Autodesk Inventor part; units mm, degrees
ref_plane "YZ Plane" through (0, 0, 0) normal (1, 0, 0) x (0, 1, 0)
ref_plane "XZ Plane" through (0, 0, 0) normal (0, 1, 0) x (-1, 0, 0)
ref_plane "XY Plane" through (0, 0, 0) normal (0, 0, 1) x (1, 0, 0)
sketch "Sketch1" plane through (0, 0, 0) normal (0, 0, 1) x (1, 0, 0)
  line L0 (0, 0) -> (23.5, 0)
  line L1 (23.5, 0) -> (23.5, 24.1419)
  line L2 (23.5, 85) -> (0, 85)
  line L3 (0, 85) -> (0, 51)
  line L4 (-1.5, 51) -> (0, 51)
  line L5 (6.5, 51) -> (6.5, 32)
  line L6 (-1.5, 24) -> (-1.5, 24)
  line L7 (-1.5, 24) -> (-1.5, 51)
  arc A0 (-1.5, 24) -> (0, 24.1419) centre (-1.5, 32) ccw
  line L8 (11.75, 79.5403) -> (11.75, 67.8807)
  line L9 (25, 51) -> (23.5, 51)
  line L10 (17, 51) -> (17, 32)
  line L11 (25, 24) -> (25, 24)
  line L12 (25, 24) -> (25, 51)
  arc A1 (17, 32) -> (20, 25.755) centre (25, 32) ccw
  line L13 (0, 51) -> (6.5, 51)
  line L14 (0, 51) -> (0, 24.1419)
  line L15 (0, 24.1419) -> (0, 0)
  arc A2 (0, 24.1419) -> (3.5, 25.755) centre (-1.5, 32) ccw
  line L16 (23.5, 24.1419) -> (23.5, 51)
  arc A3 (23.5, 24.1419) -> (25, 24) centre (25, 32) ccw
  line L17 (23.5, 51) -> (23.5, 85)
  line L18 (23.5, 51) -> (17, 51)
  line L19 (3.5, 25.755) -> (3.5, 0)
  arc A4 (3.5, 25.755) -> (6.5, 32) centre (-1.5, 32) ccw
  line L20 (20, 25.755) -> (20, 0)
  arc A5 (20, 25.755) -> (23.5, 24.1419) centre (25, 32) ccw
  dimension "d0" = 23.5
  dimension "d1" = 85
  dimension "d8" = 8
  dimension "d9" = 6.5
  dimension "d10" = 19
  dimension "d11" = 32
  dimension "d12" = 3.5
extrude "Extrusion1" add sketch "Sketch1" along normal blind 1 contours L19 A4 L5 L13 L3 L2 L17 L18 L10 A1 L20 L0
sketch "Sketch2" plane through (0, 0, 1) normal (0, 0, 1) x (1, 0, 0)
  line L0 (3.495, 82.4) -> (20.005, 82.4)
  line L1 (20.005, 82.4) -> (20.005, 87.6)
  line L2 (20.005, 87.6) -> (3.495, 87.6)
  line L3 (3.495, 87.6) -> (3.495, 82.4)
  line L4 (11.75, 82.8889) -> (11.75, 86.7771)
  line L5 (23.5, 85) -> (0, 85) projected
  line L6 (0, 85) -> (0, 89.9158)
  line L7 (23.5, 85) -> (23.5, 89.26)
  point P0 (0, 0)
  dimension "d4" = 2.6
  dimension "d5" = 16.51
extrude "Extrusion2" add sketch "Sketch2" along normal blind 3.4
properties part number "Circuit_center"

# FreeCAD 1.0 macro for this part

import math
import FreeCAD as App
import Part
import Sketcher


def add_polygon(sketch, points):
    """Adds a closed chain of lines whose ends are joined by coincident constraints."""
    first, n = sketch.GeometryCount, len(points)
    for a, b in zip(points, points[1:] + points[:1]):
        sketch.addGeometry(Part.LineSegment(App.Vector(*a, 0), App.Vector(*b, 0)), False)
    for i in range(n):
        sketch.addConstraint(Sketcher.Constraint("Coincident", first + i, 2, first + (i + 1) % n, 1))

doc = App.newDocument("Part")
body = doc.addObject("PartDesign::Body", "Body")

# Sketch on XY plane
sketch1 = body.newObject("Sketcher::SketchObject", "Sketch")
sketch1.AttachmentSupport = (doc.getObject("XY_Plane"), [""])
sketch1.MapMode = "FlatFace"
sketch1.addGeometry(Part.LineSegment(App.Vector(4, 26, 0), App.Vector(4, 0, 0)), False)
sketch1.addGeometry(Part.LineSegment(App.Vector(4, 0, 0), App.Vector(20, 0, 0)), False)
sketch1.addGeometry(Part.LineSegment(App.Vector(20, 0, 0), App.Vector(20, 26, 0)), False)
sketch1.addGeometry(Part.ArcOfCircle(Part.Circle(App.Vector(25, 32, 0), App.Vector(0, 0, 1), 8), math.radians(180), math.radians(231)), False)
sketch1.addGeometry(Part.LineSegment(App.Vector(17, 32, 0), App.Vector(17, 51, 0)), False)
sketch1.addGeometry(Part.LineSegment(App.Vector(17, 51, 0), App.Vector(24, 51, 0)), False)
sketch1.addGeometry(Part.LineSegment(App.Vector(24, 51, 0), App.Vector(24, 85, 0)), False)
sketch1.addGeometry(Part.LineSegment(App.Vector(24, 85, 0), App.Vector(0, 85, 0)), False)
sketch1.addGeometry(Part.LineSegment(App.Vector(0, 85, 0), App.Vector(0, 51, 0)), False)
sketch1.addGeometry(Part.LineSegment(App.Vector(0, 51, 0), App.Vector(6, 51, 0)), False)
sketch1.addGeometry(Part.LineSegment(App.Vector(6, 51, 0), App.Vector(6, 32, 0)), False)
sketch1.addGeometry(Part.ArcOfCircle(Part.Circle(App.Vector(-2, 32, 0), App.Vector(0, 0, 1), 8), math.radians(-51), math.radians(0)), False)
sketch1.addConstraint(Sketcher.Constraint("Coincident", 0, 2, 1, 1))
sketch1.addConstraint(Sketcher.Constraint("Coincident", 1, 2, 2, 1))
sketch1.addConstraint(Sketcher.Constraint("Coincident", 2, 2, 3, 2))
sketch1.addConstraint(Sketcher.Constraint("Tangent", 3, 1, 4, 1))
sketch1.addConstraint(Sketcher.Constraint("Coincident", 4, 2, 5, 1))
sketch1.addConstraint(Sketcher.Constraint("Coincident", 5, 2, 6, 1))
sketch1.addConstraint(Sketcher.Constraint("Coincident", 6, 2, 7, 1))
sketch1.addConstraint(Sketcher.Constraint("Coincident", 7, 2, 8, 1))
sketch1.addConstraint(Sketcher.Constraint("Coincident", 8, 2, 9, 1))
sketch1.addConstraint(Sketcher.Constraint("Coincident", 9, 2, 10, 1))
sketch1.addConstraint(Sketcher.Constraint("Tangent", 10, 2, 11, 2))
sketch1.addConstraint(Sketcher.Constraint("Coincident", 11, 1, 0, 1))
sketch1.addConstraint(Sketcher.Constraint("Vertical", 0))
sketch1.addConstraint(Sketcher.Constraint("Horizontal", 1))
sketch1.addConstraint(Sketcher.Constraint("Vertical", 2))
sketch1.addConstraint(Sketcher.Constraint("Vertical", 4))
sketch1.addConstraint(Sketcher.Constraint("Horizontal", 5))
sketch1.addConstraint(Sketcher.Constraint("Vertical", 6))
sketch1.addConstraint(Sketcher.Constraint("Horizontal", 7))
sketch1.addConstraint(Sketcher.Constraint("Vertical", 8))
sketch1.addConstraint(Sketcher.Constraint("Horizontal", 9))
sketch1.addConstraint(Sketcher.Constraint("Vertical", 10))
sketch1.addConstraint(Sketcher.Constraint("Equal", 3, 11))
sketch1.addConstraint(Sketcher.Constraint("PointOnObject", 0, 2, -1))
sketch1.addConstraint(Sketcher.Constraint("PointOnObject", 7, 2, -2))
sketch1.addConstraint(Sketcher.Constraint("Horizontal", 3, 3, 11, 3))
sketch1.addConstraint(Sketcher.Constraint("Horizontal", 5, 2, 8, 2))
sketch1.addConstraint(Sketcher.Constraint("Horizontal", 2, 2, 11, 1))
sketch1.addConstraint(Sketcher.Constraint("Equal", 5, 9))
sketch1.addConstraint(Sketcher.Constraint("Radius", 3, 8.0))
sketch1.addConstraint(Sketcher.Constraint("DistanceY", 4, 1, 4, 2, 19.0))
sketch1.addConstraint(Sketcher.Constraint("DistanceX", 5, 1, 5, 2, 6.5))
sketch1.addConstraint(Sketcher.Constraint("DistanceX", 7, 2, 7, 1, 23.5))
sketch1.addConstraint(Sketcher.Constraint("DistanceY", -1, 1, 3, 3, 32.0))
sketch1.addConstraint(Sketcher.Constraint("DistanceY", -1, 1, 6, 2, 85.0))
sketch1.addConstraint(Sketcher.Constraint("DistanceX", -1, 1, 0, 2, 3.5))
pad1 = body.newObject("PartDesign::Pad", "Pad")
pad1.Profile = sketch1
pad1.Length = 1

# Sketch on XY plane
sketch2 = body.newObject("Sketcher::SketchObject", "Sketch001")
sketch2.AttachmentSupport = (doc.getObject("XY_Plane"), [""])
sketch2.MapMode = "FlatFace"
sketch2.AttachmentOffset = App.Placement(App.Vector(0, 0, 1), App.Rotation())
add_polygon(sketch2, [(3, 82), (20, 82), (20, 88), (3, 88)])  # lines 0-3
sketch2.addConstraint(Sketcher.Constraint("Horizontal", 0))
sketch2.addConstraint(Sketcher.Constraint("Vertical", 1))
sketch2.addConstraint(Sketcher.Constraint("Horizontal", 2))
sketch2.addConstraint(Sketcher.Constraint("Vertical", 3))
sketch2.addConstraint(Sketcher.Constraint("DistanceX", 0, 1, 0, 2, 16.51))
sketch2.addConstraint(Sketcher.Constraint("DistanceY", 1, 1, 1, 2, 5.2))
sketch2.addConstraint(Sketcher.Constraint("DistanceY", -1, 1, 0, 2, 82.4))
sketch2.addConstraint(Sketcher.Constraint("DistanceX", -1, 1, 0, 2, 20.005))
pad2 = body.newObject("PartDesign::Pad", "Pad001")
pad2.Profile = sketch2
pad2.Length = 3.4

doc.recompute()
